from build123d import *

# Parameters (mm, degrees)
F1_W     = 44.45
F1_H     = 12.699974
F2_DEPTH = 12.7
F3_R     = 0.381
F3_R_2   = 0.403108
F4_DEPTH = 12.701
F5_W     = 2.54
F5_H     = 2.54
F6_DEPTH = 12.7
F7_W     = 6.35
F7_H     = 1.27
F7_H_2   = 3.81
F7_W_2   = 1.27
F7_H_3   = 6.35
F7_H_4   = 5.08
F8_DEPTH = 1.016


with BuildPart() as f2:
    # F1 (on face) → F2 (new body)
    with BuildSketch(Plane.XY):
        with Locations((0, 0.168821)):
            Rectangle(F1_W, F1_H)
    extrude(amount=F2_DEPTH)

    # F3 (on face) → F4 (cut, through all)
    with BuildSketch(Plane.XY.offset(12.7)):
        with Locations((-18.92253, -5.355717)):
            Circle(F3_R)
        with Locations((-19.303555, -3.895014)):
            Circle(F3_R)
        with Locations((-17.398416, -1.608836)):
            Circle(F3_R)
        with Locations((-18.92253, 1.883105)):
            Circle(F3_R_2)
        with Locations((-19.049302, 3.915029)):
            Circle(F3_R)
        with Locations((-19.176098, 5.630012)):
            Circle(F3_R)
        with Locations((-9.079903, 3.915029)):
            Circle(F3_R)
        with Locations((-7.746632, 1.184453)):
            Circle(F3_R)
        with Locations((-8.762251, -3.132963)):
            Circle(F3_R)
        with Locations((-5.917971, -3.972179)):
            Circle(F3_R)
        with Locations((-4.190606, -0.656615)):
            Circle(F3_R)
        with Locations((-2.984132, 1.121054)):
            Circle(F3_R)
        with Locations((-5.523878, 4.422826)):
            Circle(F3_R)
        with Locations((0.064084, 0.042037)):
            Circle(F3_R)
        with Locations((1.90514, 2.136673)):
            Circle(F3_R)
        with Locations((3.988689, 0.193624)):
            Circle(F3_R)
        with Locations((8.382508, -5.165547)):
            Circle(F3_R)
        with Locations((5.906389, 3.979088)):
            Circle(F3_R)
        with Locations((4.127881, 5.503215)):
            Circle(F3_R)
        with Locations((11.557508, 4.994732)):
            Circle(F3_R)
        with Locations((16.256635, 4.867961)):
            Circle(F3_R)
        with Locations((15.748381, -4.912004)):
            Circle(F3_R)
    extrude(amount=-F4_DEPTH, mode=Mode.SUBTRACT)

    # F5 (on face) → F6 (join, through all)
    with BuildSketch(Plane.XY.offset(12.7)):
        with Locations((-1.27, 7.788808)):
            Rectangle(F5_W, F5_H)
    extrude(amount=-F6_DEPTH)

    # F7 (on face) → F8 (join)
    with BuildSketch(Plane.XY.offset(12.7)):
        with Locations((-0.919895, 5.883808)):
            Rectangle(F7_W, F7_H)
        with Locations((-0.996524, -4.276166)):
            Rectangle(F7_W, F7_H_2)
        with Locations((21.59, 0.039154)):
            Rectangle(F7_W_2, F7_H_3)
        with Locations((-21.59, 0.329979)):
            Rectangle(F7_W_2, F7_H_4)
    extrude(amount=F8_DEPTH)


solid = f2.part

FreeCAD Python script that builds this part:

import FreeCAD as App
import Part
import Sketcher
Q = App.Units.Quantity

doc = App.newDocument("Part")
body = doc.addObject("PartDesign::Body", "Body")

# Sketch on XY plane
sketch1 = body.newObject("Sketcher::SketchObject", "Sketch")
sketch1.AttachmentSupport = (doc.getObject("XY_Plane"), [""])
sketch1.MapMode = "FlatFace"
sketch1.addGeometry([
    Part.LineSegment(App.Vector(-22, 7, 0), App.Vector(-22, -6, 0)),
    Part.LineSegment(App.Vector(-22, -6, 0), App.Vector(22, -6, 0)),
    Part.LineSegment(App.Vector(22, -6, 0), App.Vector(22, 7, 0)),
    Part.LineSegment(App.Vector(22, 7, 0), App.Vector(-22, 7, 0)),
], False)
sketch1.addConstraint([
    Sketcher.Constraint("Coincident", 0, 2, 1, 1),
    Sketcher.Constraint("Coincident", 1, 2, 2, 1),
    Sketcher.Constraint("Coincident", 2, 2, 3, 1),
    Sketcher.Constraint("Coincident", 3, 2, 0, 1),
    Sketcher.Constraint("Vertical", 0),
    Sketcher.Constraint("Horizontal", 1),
    Sketcher.Constraint("Vertical", 2),
    Sketcher.Constraint("Horizontal", 3),
    Sketcher.Constraint("DistanceX", 1, 1, 1, 2, Q("1.75 in")),
    Sketcher.Constraint("DistanceX", 0, 2, -1, 1, Q("0.875 in")),
    Sketcher.Constraint("DistanceY", 0, 2, 0, 1, 12.699974),
    Sketcher.Constraint("DistanceY", 0, 2, -1, 1, 6.181166),
])
pad1 = body.newObject("PartDesign::Pad", "Pad")
pad1.Profile = sketch1
pad1.Length = Q("0.5 in")

# Sketch on XY plane
sketch2 = body.newObject("Sketcher::SketchObject", "Sketch001")
sketch2.AttachmentSupport = (doc.getObject("XY_Plane"), [""])
sketch2.MapMode = "FlatFace"
sketch2.AttachmentOffset = App.Placement(App.Vector(0, 0, 0.5 * 25.4), App.Rotation())
sketch2.addGeometry([
    Part.Circle(App.Vector(-18.92, -5.36, 0), App.Vector(0, 0, 1), 0.38),  # 0
    Part.Circle(App.Vector(-19.3, -3.9, 0), App.Vector(0, 0, 1), 0.38),  # 1
    Part.Circle(App.Vector(-17.4, -1.61, 0), App.Vector(0, 0, 1), 0.38),  # 2
    Part.Circle(App.Vector(-18.92, 1.88, 0), App.Vector(0, 0, 1), 0.4),  # 3
    Part.Circle(App.Vector(-19.05, 3.92, 0), App.Vector(0, 0, 1), 0.38),  # 4
    Part.Circle(App.Vector(-19.18, 5.63, 0), App.Vector(0, 0, 1), 0.38),  # 5
    Part.Circle(App.Vector(-9.08, 3.92, 0), App.Vector(0, 0, 1), 0.38),  # 6
    Part.Circle(App.Vector(-7.75, 1.18, 0), App.Vector(0, 0, 1), 0.38),  # 7
    Part.Circle(App.Vector(-8.76, -3.13, 0), App.Vector(0, 0, 1), 0.38),  # 8
    Part.Circle(App.Vector(-5.92, -3.97, 0), App.Vector(0, 0, 1), 0.38),  # 9
    Part.Circle(App.Vector(-4.19, -0.66, 0), App.Vector(0, 0, 1), 0.38),  # 10
    Part.Circle(App.Vector(-2.98, 1.12, 0), App.Vector(0, 0, 1), 0.38),  # 11
    Part.Circle(App.Vector(-5.52, 4.42, 0), App.Vector(0, 0, 1), 0.38),  # 12
    Part.Circle(App.Vector(0.06, 0.04, 0), App.Vector(0, 0, 1), 0.38),  # 13
    Part.Circle(App.Vector(1.91, 2.14, 0), App.Vector(0, 0, 1), 0.38),  # 14
    Part.Circle(App.Vector(3.99, 0.19, 0), App.Vector(0, 0, 1), 0.38),  # 15
    Part.Circle(App.Vector(8.38, -5.17, 0), App.Vector(0, 0, 1), 0.38),  # 16
    Part.Circle(App.Vector(5.91, 3.98, 0), App.Vector(0, 0, 1), 0.38),  # 17
    Part.Circle(App.Vector(4.13, 5.5, 0), App.Vector(0, 0, 1), 0.38),  # 18
    Part.Circle(App.Vector(11.56, 4.99, 0), App.Vector(0, 0, 1), 0.38),  # 19
    Part.Circle(App.Vector(16.26, 4.87, 0), App.Vector(0, 0, 1), 0.38),  # 20
    Part.Circle(App.Vector(15.75, -4.91, 0), App.Vector(0, 0, 1), 0.38),  # 21
], False)
sketch2.addConstraint([
    Sketcher.Constraint("Equal", 0, 1),
    Sketcher.Constraint("Equal", 1, 2),
    Sketcher.Constraint("Equal", 2, 4),
    Sketcher.Constraint("Equal", 4, 5),
    Sketcher.Constraint("Equal", 5, 6),
    Sketcher.Constraint("Equal", 6, 7),
    Sketcher.Constraint("Equal", 7, 8),
    Sketcher.Constraint("Equal", 8, 9),
    Sketcher.Constraint("Equal", 9, 10),
    Sketcher.Constraint("Equal", 10, 11),
    Sketcher.Constraint("Equal", 11, 12),
    Sketcher.Constraint("Equal", 12, 13),
    Sketcher.Constraint("Equal", 13, 14),
    Sketcher.Constraint("Equal", 14, 15),
    Sketcher.Constraint("Equal", 15, 16),
    Sketcher.Constraint("Equal", 16, 17),
    Sketcher.Constraint("Equal", 17, 18),
    Sketcher.Constraint("Equal", 18, 19),
    Sketcher.Constraint("Equal", 19, 20),
    Sketcher.Constraint("Equal", 20, 21),
    Sketcher.Constraint("Horizontal", 4, 3, 6, 3),
    Sketcher.Constraint("Vertical", 0, 3, 3, 3),
    Sketcher.Constraint("Diameter", 0, Q("0.03 in")),
    Sketcher.Constraint("DistanceX", 7, 3, 11, 3, Q("0.1875 in")),
    Sketcher.Constraint("DistanceX", 16, 3, 19, 3, Q("0.125 in")),
    Sketcher.Constraint("Diameter", 3, 0.806216),
    Sketcher.Constraint("DistanceX", 15, 3, 17, 3, Q("0.0755 in")),
    Sketcher.Constraint("DistanceX", 4, 3, 6, 3, 9.969399),
    Sketcher.Constraint("DistanceY", 11, 3, 7, 3, 0.063399),
    Sketcher.Constraint("DistanceY", 16, 3, 11, 3, 6.286601),
    Sketcher.Constraint("DistanceX", 0, 3, -1, 1, 18.92253),
    Sketcher.Constraint("DistanceY", -1, 1, 4, 3, 3.915029),
    Sketcher.Constraint("DistanceY", -1, 1, 5, 3, 5.630012),
    Sketcher.Constraint("DistanceX", 8, 3, -1, 1, 8.762251),
    Sketcher.Constraint("DistanceX", 9, 3, -1, 1, 5.917971),
    Sketcher.Constraint("DistanceY", 9, 3, -1, 1, 3.972179),
    Sketcher.Constraint("DistanceX", 11, 3, -1, 1, 2.984132),
    Sketcher.Constraint("DistanceX", -1, 1, 14, 3, 1.90514),
    Sketcher.Constraint("DistanceX", -1, 1, 15, 3, 3.988689),
    Sketcher.Constraint("DistanceY", -1, 1, 17, 3, 3.979088),
    Sketcher.Constraint("DistanceX", -1, 1, 18, 3, 4.127881),
    Sketcher.Constraint("DistanceY", -1, 1, 20, 3, 4.867961),
    Sketcher.Constraint("DistanceX", -1, 1, 21, 3, 15.748381),
    Sketcher.Constraint("DistanceX", 1, 3, 2, 3, 1.905139),
    Sketcher.Constraint("DistanceY", 1, 3, 2, 3, 2.286178),
    Sketcher.Constraint("DistanceY", 0, 3, 2, 3, 3.746881),
    Sketcher.Constraint("DistanceY", 2, 3, 3, 3, 3.491941),
    Sketcher.Constraint("DistanceX", 5, 3, 3, 3, 0.253568),
    Sketcher.Constraint("DistanceX", 5, 3, 2, 3, 1.777682),
    Sketcher.Constraint("DistanceY", 0, 3, 5, 3, 10.985729),
    Sketcher.Constraint("DistanceX", 6, 3, 7, 3, 1.333271),
    Sketcher.Constraint("DistanceY", 2, 3, 7, 3, 2.793289),
    Sketcher.Constraint("DistanceY", 1, 3, 8, 3, 0.762051),
    Sketcher.Constraint("DistanceY", 8, 3, 10, 3, 2.476348),
    Sketcher.Constraint("DistanceX", 2, 3, 10, 3, 13.20781),
    Sketcher.Constraint("DistanceY", 11, 3, 12, 3, 3.301772),
    Sketcher.Constraint("DistanceX", 10, 3, 13, 3, 4.25469),
    Sketcher.Constraint("DistanceY", 10, 3, 13, 3, 0.698652),
    Sketcher.Constraint("DistanceY", 11, 3, 14, 3, 1.015619),
    Sketcher.Constraint("DistanceY", 15, 3, 14, 3, 1.943049),
    Sketcher.Constraint("DistanceX", 15, 3, 16, 3, 4.393819),
    Sketcher.Constraint("DistanceY", 14, 3, 18, 3, 3.366542),
    Sketcher.Constraint("DistanceY", 14, 3, 19, 3, 2.858059),
    Sketcher.Constraint("DistanceX", 12, 3, -1, 1, 5.523878),
    Sketcher.Constraint("DistanceX", -1, 1, 20, 3, 16.256635),
    Sketcher.Constraint("DistanceY", 21, 3, -1, 1, 4.912004),
])
pocket1 = body.newObject("PartDesign::Pocket", "Pocket")
pocket1.Profile = sketch2
pocket1.Type = "ThroughAll"

# Sketch on XY plane
sketch3 = body.newObject("Sketcher::SketchObject", "Sketch002")
sketch3.AttachmentSupport = (doc.getObject("XY_Plane"), [""])
sketch3.MapMode = "FlatFace"
sketch3.AttachmentOffset = App.Placement(App.Vector(0, 0, 0.5 * 25.4), App.Rotation())
sketch3.addGeometry([
    Part.LineSegment(App.Vector(-2.5, 9.1, 0), App.Vector(-2.5, 6.5, 0)),
    Part.LineSegment(App.Vector(-2.5, 6.5, 0), App.Vector(0, 6.5, 0)),
    Part.LineSegment(App.Vector(0, 6.5, 0), App.Vector(0, 9.1, 0)),
    Part.LineSegment(App.Vector(0, 9.1, 0), App.Vector(-2.5, 9.1, 0)),
], False)
sketch3.addConstraint([
    Sketcher.Constraint("Coincident", 0, 2, 1, 1),
    Sketcher.Constraint("Coincident", 1, 2, 2, 1),
    Sketcher.Constraint("Coincident", 2, 2, 3, 1),
    Sketcher.Constraint("Coincident", 3, 2, 0, 1),
    Sketcher.Constraint("Vertical", 0),
    Sketcher.Constraint("Horizontal", 1),
    Sketcher.Constraint("Vertical", 2),
    Sketcher.Constraint("Horizontal", 3),
    Sketcher.Constraint("PointOnObject", 1, 2, -2),
    Sketcher.Constraint("Equal", 3, 0),
    Sketcher.Constraint("DistanceX", 1, 1, 1, 2, Q("0.1 in")),
    Sketcher.Constraint("DistanceY", -1, 1, 2, 2, 9.058808),
])
pad2 = body.newObject("PartDesign::Pad", "Pad001")
pad2.Profile = sketch3
pad2.Length = Q("0.5 in")
pad2.Reversed = True

# Sketch on XY plane
sketch4 = body.newObject("Sketcher::SketchObject", "Sketch003")
sketch4.AttachmentSupport = (doc.getObject("XY_Plane"), [""])
sketch4.MapMode = "FlatFace"
sketch4.AttachmentOffset = App.Placement(App.Vector(0, 0, 0.5 * 25.4), App.Rotation())
sketch4.addGeometry([
    Part.LineSegment(App.Vector(-4.1, 6.5, 0), App.Vector(-4.1, 5.2, 0)),  # 0
    Part.LineSegment(App.Vector(-4.1, 5.2, 0), App.Vector(2.3, 5.2, 0)),  # 1
    Part.LineSegment(App.Vector(2.3, 5.2, 0), App.Vector(2.3, 6.5, 0)),  # 2
    Part.LineSegment(App.Vector(2.3, 6.5, 0), App.Vector(-4.1, 6.5, 0)),  # 3
    Part.LineSegment(App.Vector(-4.2, -2.4, 0), App.Vector(-4.2, -6.2, 0)),  # 4
    Part.LineSegment(App.Vector(-4.2, -6.2, 0), App.Vector(2.2, -6.2, 0)),  # 5
    Part.LineSegment(App.Vector(2.2, -6.2, 0), App.Vector(2.2, -2.4, 0)),  # 6
    Part.LineSegment(App.Vector(2.2, -2.4, 0), App.Vector(-4.2, -2.4, 0)),  # 7
    Part.LineSegment(App.Vector(21, 3.2, 0), App.Vector(21, -3.1, 0)),  # 8
    Part.LineSegment(App.Vector(21, -3.1, 0), App.Vector(22.2, -3.1, 0)),  # 9
    Part.LineSegment(App.Vector(22.2, -3.1, 0), App.Vector(22.2, 3.2, 0)),  # 10
    Part.LineSegment(App.Vector(22.2, 3.2, 0), App.Vector(21, 3.2, 0)),  # 11
    Part.LineSegment(App.Vector(-22.2, 2.9, 0), App.Vector(-22.2, -2.2, 0)),  # 12
    Part.LineSegment(App.Vector(-22.2, -2.2, 0), App.Vector(-21, -2.2, 0)),  # 13
    Part.LineSegment(App.Vector(-21, -2.2, 0), App.Vector(-21, 2.9, 0)),  # 14
    Part.LineSegment(App.Vector(-21, 2.9, 0), App.Vector(-22.2, 2.9, 0)),  # 15
], False)
sketch4.addConstraint([
    Sketcher.Constraint("Coincident", 0, 2, 1, 1),
    Sketcher.Constraint("Coincident", 1, 2, 2, 1),
    Sketcher.Constraint("Coincident", 2, 2, 3, 1),
    Sketcher.Constraint("Coincident", 3, 2, 0, 1),
    Sketcher.Constraint("Coincident", 4, 2, 5, 1),
    Sketcher.Constraint("Coincident", 5, 2, 6, 1),
    Sketcher.Constraint("Coincident", 6, 2, 7, 1),
    Sketcher.Constraint("Coincident", 7, 2, 4, 1),
    Sketcher.Constraint("Coincident", 8, 2, 9, 1),
    Sketcher.Constraint("Coincident", 9, 2, 10, 1),
    Sketcher.Constraint("Coincident", 10, 2, 11, 1),
    Sketcher.Constraint("Coincident", 11, 2, 8, 1),
    Sketcher.Constraint("Coincident", 12, 2, 13, 1),
    Sketcher.Constraint("Coincident", 13, 2, 14, 1),
    Sketcher.Constraint("Coincident", 14, 2, 15, 1),
    Sketcher.Constraint("Coincident", 15, 2, 12, 1),
    Sketcher.Constraint("Vertical", 0),
    Sketcher.Constraint("Horizontal", 1),
    Sketcher.Constraint("Vertical", 2),
    Sketcher.Constraint("Horizontal", 3),
    Sketcher.Constraint("Vertical", 4),
    Sketcher.Constraint("Horizontal", 5),
    Sketcher.Constraint("Vertical", 6),
    Sketcher.Constraint("Horizontal", 7),
    Sketcher.Constraint("Vertical", 8),
    Sketcher.Constraint("Horizontal", 9),
    Sketcher.Constraint("Vertical", 10),
    Sketcher.Constraint("Horizontal", 11),
    Sketcher.Constraint("Vertical", 12),
    Sketcher.Constraint("Horizontal", 13),
    Sketcher.Constraint("Vertical", 14),
    Sketcher.Constraint("Horizontal", 15),
    Sketcher.Constraint("Equal", 3, 5),
    Sketcher.Constraint("Equal", 11, 13),
    Sketcher.Constraint("Equal", 15, 0),
    Sketcher.Constraint("Equal", 7, 8),
    Sketcher.Constraint("DistanceY", 12, 2, 12, 1, Q("0.2 in")),
    Sketcher.Constraint("DistanceX", 1, 1, 1, 2, Q("0.25 in")),
    Sketcher.Constraint("DistanceX", 9, 1, 9, 2, Q("0.05 in")),
    Sketcher.Constraint("DistanceY", 4, 2, 4, 1, Q("0.15 in")),
    Sketcher.Constraint("DistanceX", -1, 1, 8, 2, Q("0.825 in")),
    Sketcher.Constraint("DistanceX", 12, 2, -1, 1, Q("0.875 in")),
    Sketcher.Constraint("DistanceY", -1, 1, 0, 2, 5.248808),
    Sketcher.Constraint("DistanceY", 12, 2, -1, 1, 2.210021),
    Sketcher.Constraint("DistanceX", 4, 2, 0, 2, 0.076629),
    Sketcher.Constraint("DistanceY", 8, 2, 6, 2, 0.76468),
    Sketcher.Constraint("DistanceX", 0, 2, -1, 1, 4.094895),
    Sketcher.Constraint("DistanceY", 4, 2, -1, 1, 6.181166),
])
pad3 = body.newObject("PartDesign::Pad", "Pad002")
pad3.Profile = sketch4
pad3.Length = Q("0.04 in")

doc.recompute()
